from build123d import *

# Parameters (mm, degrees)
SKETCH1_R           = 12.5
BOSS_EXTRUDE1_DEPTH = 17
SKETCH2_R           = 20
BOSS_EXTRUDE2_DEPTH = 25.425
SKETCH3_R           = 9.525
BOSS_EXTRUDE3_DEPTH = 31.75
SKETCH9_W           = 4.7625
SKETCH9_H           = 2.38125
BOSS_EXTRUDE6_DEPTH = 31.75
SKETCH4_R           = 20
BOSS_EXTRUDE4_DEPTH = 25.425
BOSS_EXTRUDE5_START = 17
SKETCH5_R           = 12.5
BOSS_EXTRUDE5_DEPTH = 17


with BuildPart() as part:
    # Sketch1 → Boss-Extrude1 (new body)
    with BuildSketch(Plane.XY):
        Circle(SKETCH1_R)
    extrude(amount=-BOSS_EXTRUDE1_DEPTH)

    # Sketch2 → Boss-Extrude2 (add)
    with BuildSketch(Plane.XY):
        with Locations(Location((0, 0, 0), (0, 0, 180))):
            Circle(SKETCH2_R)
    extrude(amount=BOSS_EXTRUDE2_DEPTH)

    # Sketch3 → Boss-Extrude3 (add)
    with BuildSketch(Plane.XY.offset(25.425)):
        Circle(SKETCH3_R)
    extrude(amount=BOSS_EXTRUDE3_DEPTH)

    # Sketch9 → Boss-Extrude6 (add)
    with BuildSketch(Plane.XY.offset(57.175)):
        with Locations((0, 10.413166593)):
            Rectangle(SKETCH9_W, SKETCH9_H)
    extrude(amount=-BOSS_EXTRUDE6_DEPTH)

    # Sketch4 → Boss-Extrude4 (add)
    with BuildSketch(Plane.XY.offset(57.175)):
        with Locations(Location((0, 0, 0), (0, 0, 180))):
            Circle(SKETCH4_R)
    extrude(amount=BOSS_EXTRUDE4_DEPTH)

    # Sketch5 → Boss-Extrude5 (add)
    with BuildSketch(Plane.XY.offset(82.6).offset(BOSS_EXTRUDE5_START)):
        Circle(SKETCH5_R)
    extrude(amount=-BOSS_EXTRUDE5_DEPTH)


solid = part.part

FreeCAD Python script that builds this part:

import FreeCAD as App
import Part
import Sketcher

V = App.Vector
Q = App.Units.Quantity


def add_polygon(sketch, points):
    """Adds a closed chain of lines whose ends are joined by coincident constraints."""
    first, n = sketch.GeometryCount, len(points)
    for a, b in zip(points, points[1:] + points[:1]):
        sketch.addGeometry(Part.LineSegment(App.Vector(*a, 0), App.Vector(*b, 0)), False)
    for i in range(n):
        sketch.addConstraint(Sketcher.Constraint("Coincident", first + i, 2, first + (i + 1) % n, 1))

doc = App.newDocument("Part")
params = doc.addObject("Spreadsheet::Sheet", "Params")
for row, (alias, value) in enumerate([
    ("pad1_length", "17 mm"),
    ("pad2_length", "25.425 mm"),
    ("sketch3_diameter", "0.75 in"),
    ("pad3_length", "1.25 in"),
    ("sketch4_width", "0.1875 in"),
    ("sketch4_height", "0.09375 in"),
    ("pad4_length", "1.25 in"),
    ("pad5_length", "25.425 mm"),
    ("pad6_length", "17 mm"),
], start=1):
    params.set(f"A{row}", alias)
    params.set(f"B{row}", "=" + value)
    params.setAlias(f"B{row}", alias)

body = doc.addObject("PartDesign::Body", "Body")

# Sketch on XY plane
sketch1 = doc.addObject("Sketcher::SketchObject", "Sketch")
body.addObject(sketch1)
sketch1.AttachmentSupport = (doc.XY_Plane, [""])
sketch1.MapMode = "FlatFace"
sketch1.addGeometry(Part.Circle(V(0, 0, 0), V(0, 0, 1), 12), False)
sketch1.addConstraint([
    Sketcher.Constraint("Coincident", 0, 3, -1, 1),
    Sketcher.Constraint("Diameter", 0, Q("25 mm")),
])
pad1 = doc.addObject("PartDesign::Pad", "Pad")
body.addObject(pad1)
pad1.Profile = sketch1
pad1.setExpression("Length", "Params.pad1_length")
pad1.Reversed = True

# Sketch on XY plane
sketch2 = doc.addObject("Sketcher::SketchObject", "Sketch001")
body.addObject(sketch2)
sketch2.AttachmentSupport = (doc.XY_Plane, [""])
sketch2.MapMode = "FlatFace"
sketch2.addGeometry(Part.Circle(V(0, 0, 0), V(0, 0, 1), 20), False)
sketch2.addConstraint([
    Sketcher.Constraint("Coincident", 0, 3, -1, 1),
    Sketcher.Constraint("Diameter", 0, Q("40 mm")),
])
pad2 = doc.addObject("PartDesign::Pad", "Pad001")
body.addObject(pad2)
pad2.Profile = sketch2
pad2.setExpression("Length", "Params.pad2_length")

# Sketch on XY plane
sketch3 = doc.addObject("Sketcher::SketchObject", "Sketch002")
body.addObject(sketch3)
sketch3.AttachmentSupport = (doc.XY_Plane, [""])
sketch3.MapMode = "FlatFace"
sketch3.AttachmentOffset = App.Placement(V(0, 0, 25.425), App.Rotation())
sketch3.addGeometry(Part.Circle(V(0, 0, 0), V(0, 0, 1), 10), False)
sketch3.addConstraint([
    Sketcher.Constraint("Coincident", 0, 3, -1, 1),
    Sketcher.Constraint("Diameter", 0, Q("0.75 in")),
])
sketch3.setExpression("Constraints[1]", "Params.sketch3_diameter")
pad3 = doc.addObject("PartDesign::Pad", "Pad002")
body.addObject(pad3)
pad3.Profile = sketch3
pad3.setExpression("Length", "Params.pad3_length")

# Sketch on XY plane
sketch4 = doc.addObject("Sketcher::SketchObject", "Sketch003")
body.addObject(sketch4)
sketch4.AttachmentSupport = (doc.XY_Plane, [""])
sketch4.MapMode = "FlatFace"
sketch4.AttachmentOffset = App.Placement(V(0, 0, 57.175), App.Rotation())
add_polygon(sketch4, [(-2.4, 11.6), (-2.4, 9.2), (2.4, 9.2), (2.4, 11.6)])  # lines 0-3
sketch4.addConstraint([
    Sketcher.Constraint("Vertical", 0),
    Sketcher.Constraint("Horizontal", 1),
    Sketcher.Constraint("Vertical", 2),
    Sketcher.Constraint("Horizontal", 3),
    Sketcher.Constraint("DistanceX", 1, 1, 1, 2, Q("0.1875 in")),
    Sketcher.Constraint("DistanceY", 0, 2, 0, 1, Q("0.09375 in")),
    Sketcher.Constraint("DistanceX", 0, 2, -1, 1, Q("0.09375 in")),
    Sketcher.Constraint("DistanceY", -1, 1, 0, 2, Q("9.222542 mm")),
])
sketch4.setExpression("Constraints[8]", "Params.sketch4_width")
sketch4.setExpression("Constraints[9]", "Params.sketch4_height")
pad4 = doc.addObject("PartDesign::Pad", "Pad003")
body.addObject(pad4)
pad4.Profile = sketch4
pad4.setExpression("Length", "Params.pad4_length")
pad4.Reversed = True

# Sketch on XY plane
sketch5 = doc.addObject("Sketcher::SketchObject", "Sketch004")
body.addObject(sketch5)
sketch5.AttachmentSupport = (doc.XY_Plane, [""])
sketch5.MapMode = "FlatFace"
sketch5.AttachmentOffset = App.Placement(V(0, 0, 57.175), App.Rotation())
sketch5.addGeometry(Part.Circle(V(0, 0, 0), V(0, 0, 1), 20), False)
sketch5.addConstraint([
    Sketcher.Constraint("Coincident", 0, 3, -1, 1),
    Sketcher.Constraint("Diameter", 0, Q("40 mm")),
])
pad5 = doc.addObject("PartDesign::Pad", "Pad004")
body.addObject(pad5)
pad5.Profile = sketch5
pad5.setExpression("Length", "Params.pad5_length")

# Sketch on XY plane
sketch6 = doc.addObject("Sketcher::SketchObject", "Sketch005")
body.addObject(sketch6)
sketch6.AttachmentSupport = (doc.XY_Plane, [""])
sketch6.MapMode = "FlatFace"
sketch6.AttachmentOffset = App.Placement(V(0, 0, 99.6), App.Rotation())
sketch6.addGeometry(Part.Circle(V(0, 0, 0), V(0, 0, 1), 12), False)
sketch6.addConstraint([
    Sketcher.Constraint("Coincident", 0, 3, -1, 1),
    Sketcher.Constraint("Diameter", 0, Q("25 mm")),
])
pad6 = doc.addObject("PartDesign::Pad", "Pad005")
body.addObject(pad6)
pad6.Profile = sketch6
pad6.setExpression("Length", "Params.pad6_length")
pad6.Reversed = True

doc.recompute()
